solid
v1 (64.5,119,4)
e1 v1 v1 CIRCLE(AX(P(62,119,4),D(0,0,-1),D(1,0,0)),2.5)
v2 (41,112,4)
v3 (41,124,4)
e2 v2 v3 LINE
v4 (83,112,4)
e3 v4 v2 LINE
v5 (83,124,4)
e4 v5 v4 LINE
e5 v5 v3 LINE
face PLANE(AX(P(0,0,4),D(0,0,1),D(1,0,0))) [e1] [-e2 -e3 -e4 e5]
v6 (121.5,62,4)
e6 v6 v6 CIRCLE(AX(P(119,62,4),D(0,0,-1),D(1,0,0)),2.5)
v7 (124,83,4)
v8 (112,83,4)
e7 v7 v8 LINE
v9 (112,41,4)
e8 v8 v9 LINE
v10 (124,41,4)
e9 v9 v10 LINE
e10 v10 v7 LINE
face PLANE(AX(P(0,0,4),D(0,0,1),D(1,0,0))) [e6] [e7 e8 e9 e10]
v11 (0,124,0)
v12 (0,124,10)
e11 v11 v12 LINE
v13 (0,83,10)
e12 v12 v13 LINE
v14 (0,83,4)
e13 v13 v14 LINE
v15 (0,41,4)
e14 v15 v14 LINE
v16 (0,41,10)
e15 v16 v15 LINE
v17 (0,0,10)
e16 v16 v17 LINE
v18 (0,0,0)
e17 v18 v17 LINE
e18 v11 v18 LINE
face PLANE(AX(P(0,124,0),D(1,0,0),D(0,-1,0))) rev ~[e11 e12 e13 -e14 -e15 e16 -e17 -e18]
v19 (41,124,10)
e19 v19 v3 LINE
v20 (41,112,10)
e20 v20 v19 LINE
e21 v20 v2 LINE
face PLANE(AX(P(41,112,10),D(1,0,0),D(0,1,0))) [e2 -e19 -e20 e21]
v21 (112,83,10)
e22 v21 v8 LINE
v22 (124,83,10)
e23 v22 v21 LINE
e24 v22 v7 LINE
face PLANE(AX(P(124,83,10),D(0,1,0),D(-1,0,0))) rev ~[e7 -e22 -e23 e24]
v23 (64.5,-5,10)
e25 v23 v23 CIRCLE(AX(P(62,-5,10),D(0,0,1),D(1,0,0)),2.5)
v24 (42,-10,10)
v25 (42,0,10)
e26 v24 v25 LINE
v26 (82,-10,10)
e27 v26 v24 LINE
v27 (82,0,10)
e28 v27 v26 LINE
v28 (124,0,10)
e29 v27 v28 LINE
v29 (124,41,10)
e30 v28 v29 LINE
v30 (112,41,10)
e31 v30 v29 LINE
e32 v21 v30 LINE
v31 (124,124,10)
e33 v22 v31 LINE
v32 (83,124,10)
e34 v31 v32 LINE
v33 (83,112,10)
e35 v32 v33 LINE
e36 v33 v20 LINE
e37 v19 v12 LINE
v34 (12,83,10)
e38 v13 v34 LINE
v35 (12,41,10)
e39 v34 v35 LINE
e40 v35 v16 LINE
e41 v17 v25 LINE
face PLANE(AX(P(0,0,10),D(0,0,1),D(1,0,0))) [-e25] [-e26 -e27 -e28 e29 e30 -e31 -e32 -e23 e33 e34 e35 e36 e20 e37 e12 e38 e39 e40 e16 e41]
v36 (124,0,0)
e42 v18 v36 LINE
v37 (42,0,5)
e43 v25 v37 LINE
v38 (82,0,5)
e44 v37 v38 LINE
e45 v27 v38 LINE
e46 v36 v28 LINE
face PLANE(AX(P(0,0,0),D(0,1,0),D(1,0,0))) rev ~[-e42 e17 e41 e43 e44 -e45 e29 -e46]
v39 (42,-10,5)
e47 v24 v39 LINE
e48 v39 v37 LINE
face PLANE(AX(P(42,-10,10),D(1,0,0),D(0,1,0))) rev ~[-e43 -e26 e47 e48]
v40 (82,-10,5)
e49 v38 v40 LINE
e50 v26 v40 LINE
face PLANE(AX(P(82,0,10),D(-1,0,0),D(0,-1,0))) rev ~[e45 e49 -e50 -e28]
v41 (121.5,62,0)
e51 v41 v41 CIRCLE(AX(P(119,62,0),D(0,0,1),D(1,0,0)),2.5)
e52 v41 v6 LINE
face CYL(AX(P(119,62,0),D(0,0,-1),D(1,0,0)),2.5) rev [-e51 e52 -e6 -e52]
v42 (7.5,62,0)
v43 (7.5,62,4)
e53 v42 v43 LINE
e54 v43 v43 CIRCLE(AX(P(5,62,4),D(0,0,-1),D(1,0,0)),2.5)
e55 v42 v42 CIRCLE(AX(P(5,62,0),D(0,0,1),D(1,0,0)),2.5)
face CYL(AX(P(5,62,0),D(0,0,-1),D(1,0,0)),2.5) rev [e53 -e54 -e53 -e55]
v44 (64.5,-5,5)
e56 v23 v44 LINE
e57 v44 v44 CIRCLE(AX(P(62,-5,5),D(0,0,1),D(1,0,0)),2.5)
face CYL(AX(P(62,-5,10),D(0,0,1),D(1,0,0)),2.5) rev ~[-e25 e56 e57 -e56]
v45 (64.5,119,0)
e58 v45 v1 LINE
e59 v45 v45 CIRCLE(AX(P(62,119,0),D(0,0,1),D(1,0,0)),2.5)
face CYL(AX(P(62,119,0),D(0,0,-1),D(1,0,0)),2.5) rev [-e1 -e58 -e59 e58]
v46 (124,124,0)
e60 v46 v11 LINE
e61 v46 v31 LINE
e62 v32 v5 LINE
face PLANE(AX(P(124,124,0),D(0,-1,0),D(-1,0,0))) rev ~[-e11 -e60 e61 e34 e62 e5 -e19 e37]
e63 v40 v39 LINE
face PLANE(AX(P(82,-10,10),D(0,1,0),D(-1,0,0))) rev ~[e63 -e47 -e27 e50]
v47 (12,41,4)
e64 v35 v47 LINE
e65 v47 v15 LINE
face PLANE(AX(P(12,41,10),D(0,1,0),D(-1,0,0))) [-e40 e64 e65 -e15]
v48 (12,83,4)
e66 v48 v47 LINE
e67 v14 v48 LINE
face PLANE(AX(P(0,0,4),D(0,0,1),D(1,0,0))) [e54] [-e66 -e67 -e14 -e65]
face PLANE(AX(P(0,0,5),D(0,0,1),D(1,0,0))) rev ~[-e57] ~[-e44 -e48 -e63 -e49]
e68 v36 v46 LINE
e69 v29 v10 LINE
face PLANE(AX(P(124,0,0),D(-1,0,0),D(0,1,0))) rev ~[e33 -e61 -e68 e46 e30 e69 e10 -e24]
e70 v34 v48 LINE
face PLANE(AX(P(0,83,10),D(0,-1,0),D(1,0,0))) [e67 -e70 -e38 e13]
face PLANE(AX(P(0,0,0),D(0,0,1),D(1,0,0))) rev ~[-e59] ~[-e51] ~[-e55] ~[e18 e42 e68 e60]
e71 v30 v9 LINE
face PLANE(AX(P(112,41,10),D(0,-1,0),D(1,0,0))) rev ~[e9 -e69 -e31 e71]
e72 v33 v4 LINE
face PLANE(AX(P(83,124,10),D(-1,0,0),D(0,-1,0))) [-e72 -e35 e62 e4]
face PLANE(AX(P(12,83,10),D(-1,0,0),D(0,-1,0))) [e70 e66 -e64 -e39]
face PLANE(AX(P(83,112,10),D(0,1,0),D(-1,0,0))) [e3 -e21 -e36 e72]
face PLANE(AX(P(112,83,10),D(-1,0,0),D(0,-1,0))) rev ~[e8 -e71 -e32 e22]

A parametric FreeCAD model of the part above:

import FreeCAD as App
import Part
import Sketcher

V = App.Vector
Q = App.Units.Quantity

doc = App.newDocument("Part")
body = doc.addObject("PartDesign::Body", "Body")

sketch1 = doc.addObject("Sketcher::SketchObject", "Sketch")
body.addObject(sketch1)
sketch1.AttachmentSupport = (doc.XY_Plane, [""])
sketch1.MapMode = "FlatFace"
sketch1.addGeometry(Part.LineSegment(V(0, 124, 0), V(0, 0, 0)), False)
sketch1.addGeometry(Part.LineSegment(V(0, 0, 0), V(124, 0, 0)), False)
sketch1.addGeometry(Part.LineSegment(V(124, 0, 0), V(124, 124, 0)), False)
sketch1.addGeometry(Part.LineSegment(V(124, 124, 0), V(0, 124, 0)), False)
sketch1.addGeometry(Part.Circle(V(5, 62, 0), V(0, 0, 1), 2.5), False)
sketch1.addGeometry(Part.Circle(V(119, 62, 0), V(0, 0, 1), 2.5), False)
sketch1.addGeometry(Part.Circle(V(62, 119, 0), V(0, 0, 1), 2.5), False)
sketch1.addConstraint(Sketcher.Constraint("Coincident", 0, 2, 1, 1))
sketch1.addConstraint(Sketcher.Constraint("Coincident", 1, 2, 2, 1))
sketch1.addConstraint(Sketcher.Constraint("Coincident", 2, 2, 3, 1))
sketch1.addConstraint(Sketcher.Constraint("Coincident", 3, 2, 0, 1))
sketch1.addConstraint(Sketcher.Constraint("Vertical", 0))
sketch1.addConstraint(Sketcher.Constraint("Horizontal", 1))
sketch1.addConstraint(Sketcher.Constraint("Vertical", 2))
sketch1.addConstraint(Sketcher.Constraint("Horizontal", 3))
sketch1.addConstraint(Sketcher.Constraint("Coincident", 0, 2, -1, 1))
sketch1.addConstraint(Sketcher.Constraint("Equal", 4, 5))
sketch1.addConstraint(Sketcher.Constraint("Equal", 5, 6))
sketch1.addConstraint(Sketcher.Constraint("Horizontal", 4, 3, 5, 3))
sketch1.addConstraint(Sketcher.Constraint("Equal", 3, 0))
sketch1.addConstraint(Sketcher.Constraint("Diameter", 4, Q("5 mm")))
sketch1.addConstraint(Sketcher.Constraint("DistanceX", 1, 1, 1, 2, Q("124 mm")))
sketch1.addConstraint(Sketcher.Constraint("DistanceX", -1, 1, 4, 3, Q("5 mm")))
sketch1.addConstraint(Sketcher.Constraint("DistanceX", 5, 3, 1, 2, Q("5 mm")))
sketch1.addConstraint(Sketcher.Constraint("DistanceY", 6, 3, 2, 2, Q("5 mm")))
sketch1.addConstraint(Sketcher.Constraint("DistanceY", -1, 1, 4, 3, Q("62 mm")))
sketch1.addConstraint(Sketcher.Constraint("DistanceX", -1, 1, 6, 3, Q("62 mm")))
pad1 = doc.addObject("PartDesign::Pad", "Pad")
body.addObject(pad1)
pad1.Profile = sketch1
pad1.Length = 10

sketch2 = doc.addObject("Sketcher::SketchObject", "Sketch001")
body.addObject(sketch2)
sketch2.AttachmentSupport = (doc.XY_Plane, [""])
sketch2.MapMode = "FlatFace"
sketch2.AttachmentOffset = App.Placement(V(0, 0, 10), App.Rotation())
sketch2.addGeometry(Part.LineSegment(V(12, 83, 0), V(0, 83, 0)), False)
sketch2.addGeometry(Part.LineSegment(V(0, 83, 0), V(0, 41, 0)), False)
sketch2.addGeometry(Part.LineSegment(V(0, 41, 0), V(12, 41, 0)), False)
sketch2.addGeometry(Part.LineSegment(V(12, 41, 0), V(12, 83, 0)), False)
sketch2.addGeometry(Part.LineSegment(V(124, 41, 0), V(124, 83, 0)), False)
sketch2.addGeometry(Part.LineSegment(V(124, 83, 0), V(112, 83, 0)), False)
sketch2.addGeometry(Part.LineSegment(V(112, 83, 0), V(112, 41, 0)), False)
sketch2.addGeometry(Part.LineSegment(V(112, 41, 0), V(124, 41, 0)), False)
sketch2.addGeometry(Part.LineSegment(V(83, 124, 0), V(41, 124, 0)), False)
sketch2.addGeometry(Part.LineSegment(V(41, 124, 0), V(41, 112, 0)), False)
sketch2.addGeometry(Part.LineSegment(V(41, 112, 0), V(83, 112, 0)), False)
sketch2.addGeometry(Part.LineSegment(V(83, 112, 0), V(83, 124, 0)), False)
sketch2.addConstraint(Sketcher.Constraint("Coincident", 0, 2, 1, 1))
sketch2.addConstraint(Sketcher.Constraint("Coincident", 1, 2, 2, 1))
sketch2.addConstraint(Sketcher.Constraint("Coincident", 2, 2, 3, 1))
sketch2.addConstraint(Sketcher.Constraint("Coincident", 3, 2, 0, 1))
sketch2.addConstraint(Sketcher.Constraint("Coincident", 4, 2, 5, 1))
sketch2.addConstraint(Sketcher.Constraint("Coincident", 5, 2, 6, 1))
sketch2.addConstraint(Sketcher.Constraint("Coincident", 6, 2, 7, 1))
sketch2.addConstraint(Sketcher.Constraint("Coincident", 7, 2, 4, 1))
sketch2.addConstraint(Sketcher.Constraint("Coincident", 8, 2, 9, 1))
sketch2.addConstraint(Sketcher.Constraint("Coincident", 9, 2, 10, 1))
sketch2.addConstraint(Sketcher.Constraint("Coincident", 10, 2, 11, 1))
sketch2.addConstraint(Sketcher.Constraint("Coincident", 11, 2, 8, 1))
sketch2.addConstraint(Sketcher.Constraint("Horizontal", 0))
sketch2.addConstraint(Sketcher.Constraint("Vertical", 1))
sketch2.addConstraint(Sketcher.Constraint("Horizontal", 2))
sketch2.addConstraint(Sketcher.Constraint("Vertical", 3))
sketch2.addConstraint(Sketcher.Constraint("Vertical", 4))
sketch2.addConstraint(Sketcher.Constraint("Horizontal", 5))
sketch2.addConstraint(Sketcher.Constraint("Vertical", 6))
sketch2.addConstraint(Sketcher.Constraint("Horizontal", 7))
sketch2.addConstraint(Sketcher.Constraint("Horizontal", 8))
sketch2.addConstraint(Sketcher.Constraint("Vertical", 9))
sketch2.addConstraint(Sketcher.Constraint("Horizontal", 10))
sketch2.addConstraint(Sketcher.Constraint("Vertical", 11))
sketch2.addConstraint(Sketcher.Constraint("PointOnObject", 0, 2, -2))
sketch2.addConstraint(Sketcher.Constraint("Horizontal", 3, 2, 4, 2))
sketch2.addConstraint(Sketcher.Constraint("Horizontal", 2, 2, 6, 2))
sketch2.addConstraint(Sketcher.Constraint("Equal", 2, 5))
sketch2.addConstraint(Sketcher.Constraint("Equal", 10, 1))
sketch2.addConstraint(Sketcher.Constraint("Equal", 7, 9))
sketch2.addConstraint(Sketcher.Constraint("DistanceX", 0, 2, 0, 1, Q("12 mm")))
sketch2.addConstraint(Sketcher.Constraint("DistanceX", 8, 2, 8, 1, Q("42 mm")))
sketch2.addConstraint(Sketcher.Constraint("DistanceY", -1, 1, 0, 2, Q("83 mm")))
sketch2.addConstraint(Sketcher.Constraint("DistanceX", -1, 1, 4, 2, Q("124 mm")))
sketch2.addConstraint(Sketcher.Constraint("DistanceX", -1, 1, 8, 2, Q("41 mm")))
sketch2.addConstraint(Sketcher.Constraint("DistanceY", -1, 1, 8, 2, Q("124 mm")))
pocket1 = doc.addObject("PartDesign::Pocket", "Pocket")
body.addObject(pocket1)
pocket1.Profile = sketch2
pocket1.Length = 6

sketch3 = doc.addObject("Sketcher::SketchObject", "Sketch002")
body.addObject(sketch3)
sketch3.AttachmentSupport = (doc.XY_Plane, [""])
sketch3.MapMode = "FlatFace"
sketch3.AttachmentOffset = App.Placement(V(0, 0, 10), App.Rotation())
sketch3.addGeometry(Part.LineSegment(V(82, 0, 0), V(42, 0, 0)), False)
sketch3.addGeometry(Part.LineSegment(V(42, 0, 0), V(42, -10, 0)), False)
sketch3.addGeometry(Part.LineSegment(V(42, -10, 0), V(82, -10, 0)), False)
sketch3.addGeometry(Part.LineSegment(V(82, -10, 0), V(82, 0, 0)), False)
sketch3.addGeometry(Part.Circle(V(62, -5, 0), V(0, 0, 1), 2.5), False)
sketch3.addConstraint(Sketcher.Constraint("Coincident", 0, 2, 1, 1))
sketch3.addConstraint(Sketcher.Constraint("Coincident", 1, 2, 2, 1))
sketch3.addConstraint(Sketcher.Constraint("Coincident", 2, 2, 3, 1))
sketch3.addConstraint(Sketcher.Constraint("Coincident", 3, 2, 0, 1))
sketch3.addConstraint(Sketcher.Constraint("Horizontal", 0))
sketch3.addConstraint(Sketcher.Constraint("Vertical", 1))
sketch3.addConstraint(Sketcher.Constraint("Horizontal", 2))
sketch3.addConstraint(Sketcher.Constraint("Vertical", 3))
sketch3.addConstraint(Sketcher.Constraint("PointOnObject", 0, 2, -1))
sketch3.addConstraint(Sketcher.Constraint("Diameter", 4, Q("5 mm")))
sketch3.addConstraint(Sketcher.Constraint("DistanceX", 0, 2, 0, 1, Q("40 mm")))
sketch3.addConstraint(Sketcher.Constraint("DistanceY", 1, 2, 1, 1, Q("10 mm")))
sketch3.addConstraint(Sketcher.Constraint("DistanceY", 4, 3, -1, 1, Q("5 mm")))
sketch3.addConstraint(Sketcher.Constraint("DistanceX", -1, 1, 4, 3, Q("62 mm")))
sketch3.addConstraint(Sketcher.Constraint("DistanceX", -1, 1, 0, 2, Q("42 mm")))
pad2 = doc.addObject("PartDesign::Pad", "Pad001")
body.addObject(pad2)
pad2.Profile = sketch3
pad2.Length = 5
pad2.Reversed = True

doc.recompute()
